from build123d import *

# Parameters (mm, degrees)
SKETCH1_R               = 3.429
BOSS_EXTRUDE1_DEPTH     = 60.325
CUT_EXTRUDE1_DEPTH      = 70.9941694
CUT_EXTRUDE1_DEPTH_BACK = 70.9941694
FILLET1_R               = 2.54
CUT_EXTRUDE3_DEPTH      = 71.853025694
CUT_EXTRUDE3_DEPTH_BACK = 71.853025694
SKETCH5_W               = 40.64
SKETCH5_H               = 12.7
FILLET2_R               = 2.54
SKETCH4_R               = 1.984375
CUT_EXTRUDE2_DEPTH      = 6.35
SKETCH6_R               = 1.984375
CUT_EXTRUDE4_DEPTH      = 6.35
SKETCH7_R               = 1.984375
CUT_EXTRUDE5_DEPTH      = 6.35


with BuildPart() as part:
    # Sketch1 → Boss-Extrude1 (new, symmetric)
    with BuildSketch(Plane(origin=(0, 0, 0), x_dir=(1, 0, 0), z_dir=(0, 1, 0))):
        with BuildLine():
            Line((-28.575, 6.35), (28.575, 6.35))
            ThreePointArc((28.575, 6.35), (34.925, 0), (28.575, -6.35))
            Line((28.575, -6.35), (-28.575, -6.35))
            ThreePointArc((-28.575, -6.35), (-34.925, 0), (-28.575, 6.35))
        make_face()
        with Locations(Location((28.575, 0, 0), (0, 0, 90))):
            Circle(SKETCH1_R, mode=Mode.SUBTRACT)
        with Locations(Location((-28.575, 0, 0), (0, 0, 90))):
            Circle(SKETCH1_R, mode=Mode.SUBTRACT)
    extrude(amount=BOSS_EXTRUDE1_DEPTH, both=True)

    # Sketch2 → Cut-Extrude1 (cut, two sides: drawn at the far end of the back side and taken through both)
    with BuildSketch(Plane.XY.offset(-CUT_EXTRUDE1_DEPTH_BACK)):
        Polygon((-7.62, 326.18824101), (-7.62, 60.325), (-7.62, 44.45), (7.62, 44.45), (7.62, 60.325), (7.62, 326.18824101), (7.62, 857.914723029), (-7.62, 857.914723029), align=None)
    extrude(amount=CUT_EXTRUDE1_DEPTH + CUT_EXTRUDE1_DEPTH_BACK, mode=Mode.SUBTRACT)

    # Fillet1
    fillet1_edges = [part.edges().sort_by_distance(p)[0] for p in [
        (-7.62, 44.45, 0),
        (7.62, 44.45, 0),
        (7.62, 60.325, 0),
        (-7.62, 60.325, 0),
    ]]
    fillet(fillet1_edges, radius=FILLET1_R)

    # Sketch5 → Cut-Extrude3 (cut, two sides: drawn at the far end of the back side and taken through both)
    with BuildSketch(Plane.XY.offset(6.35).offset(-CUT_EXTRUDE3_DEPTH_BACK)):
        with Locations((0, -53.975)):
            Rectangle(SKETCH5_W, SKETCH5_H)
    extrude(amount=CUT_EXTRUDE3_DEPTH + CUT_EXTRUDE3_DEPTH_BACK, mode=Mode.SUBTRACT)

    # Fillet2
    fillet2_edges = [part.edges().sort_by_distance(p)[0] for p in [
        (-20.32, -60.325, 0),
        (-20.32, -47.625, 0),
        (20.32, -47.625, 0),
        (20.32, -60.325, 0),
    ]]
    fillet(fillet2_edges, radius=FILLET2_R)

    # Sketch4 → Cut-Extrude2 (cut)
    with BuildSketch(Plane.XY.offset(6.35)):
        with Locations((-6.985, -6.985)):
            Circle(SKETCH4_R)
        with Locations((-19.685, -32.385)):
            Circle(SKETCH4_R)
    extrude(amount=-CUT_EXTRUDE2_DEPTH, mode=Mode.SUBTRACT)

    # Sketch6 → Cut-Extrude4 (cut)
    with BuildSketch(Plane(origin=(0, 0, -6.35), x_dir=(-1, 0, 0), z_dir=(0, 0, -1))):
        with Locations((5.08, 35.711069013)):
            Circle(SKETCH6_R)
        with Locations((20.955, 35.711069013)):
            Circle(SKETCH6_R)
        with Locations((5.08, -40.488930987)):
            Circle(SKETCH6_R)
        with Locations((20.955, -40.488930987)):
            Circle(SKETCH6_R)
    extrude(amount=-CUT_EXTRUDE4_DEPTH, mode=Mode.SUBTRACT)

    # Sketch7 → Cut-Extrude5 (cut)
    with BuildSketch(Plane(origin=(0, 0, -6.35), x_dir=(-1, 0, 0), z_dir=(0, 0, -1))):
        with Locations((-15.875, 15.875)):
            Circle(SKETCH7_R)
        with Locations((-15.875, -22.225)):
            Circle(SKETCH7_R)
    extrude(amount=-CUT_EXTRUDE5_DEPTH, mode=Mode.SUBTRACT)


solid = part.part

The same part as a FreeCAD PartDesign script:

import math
import FreeCAD as App
import Part
import Sketcher
Q = App.Units.Quantity


def edges_at(feature, points):
    """Names of the edges that pass closest to the given points."""
    edges = feature.Shape.Edges
    near = lambda p: min(range(len(edges)), key=lambda i: edges[i].distToShape(Part.Vertex(*p))[0])
    return sorted({f"Edge{near(p) + 1}" for p in points})

doc = App.newDocument("Part")
body = doc.addObject("PartDesign::Body", "Body")

sketch1 = doc.addObject("Sketcher::SketchObject", "Sketch")
body.addObject(sketch1)
sketch1.AttachmentSupport = (doc.XZ_Plane, [""])
sketch1.MapMode = "FlatFace"
sketch1.addGeometry(Part.LineSegment(App.Vector(28.6, -6.3, 0), App.Vector(-28.6, -6.3, 0)), False)
sketch1.addGeometry(Part.ArcOfCircle(Part.Circle(App.Vector(-28.6, 0, 0), App.Vector(0, 0, 1), 6.3), math.radians(90), math.radians(270)), False)
sketch1.addGeometry(Part.LineSegment(App.Vector(-28.6, 6.3, 0), App.Vector(28.6, 6.3, 0)), False)
sketch1.addGeometry(Part.ArcOfCircle(Part.Circle(App.Vector(28.6, 0, 0), App.Vector(0, 0, 1), 6.3), math.radians(-90), math.radians(90)), False)
sketch1.addGeometry(Part.Circle(App.Vector(28.6, 0, 0), App.Vector(0, 0, 1), 3.4), False)
sketch1.addGeometry(Part.Circle(App.Vector(-28.6, 0, 0), App.Vector(0, 0, 1), 3.4), False)
sketch1.addConstraint(Sketcher.Constraint("Tangent", 0, 2, 1, 2))
sketch1.addConstraint(Sketcher.Constraint("Tangent", 1, 1, 2, 1))
sketch1.addConstraint(Sketcher.Constraint("Tangent", 2, 2, 3, 2))
sketch1.addConstraint(Sketcher.Constraint("Tangent", 3, 1, 0, 1))
sketch1.addConstraint(Sketcher.Constraint("Horizontal", 0))
sketch1.addConstraint(Sketcher.Constraint("Horizontal", 2))
sketch1.addConstraint(Sketcher.Constraint("Coincident", 4, 3, 3, 3))
sketch1.addConstraint(Sketcher.Constraint("Coincident", 5, 3, 1, 3))
sketch1.addConstraint(Sketcher.Constraint("Equal", 4, 5))
sketch1.addConstraint(Sketcher.Constraint("Symmetric", 1, 3, 3, 3, -1, 1))
sketch1.addConstraint(Sketcher.Constraint("Diameter", 4, Q("0.27 in")))
sketch1.addConstraint(Sketcher.Constraint("Radius", 1, Q("0.25 in")))
sketch1.addConstraint(Sketcher.Constraint("DistanceX", 0, 2, 0, 1, Q("2.25 in")))
pad1 = doc.addObject("PartDesign::Pad", "Pad")
body.addObject(pad1)
pad1.Profile = sketch1
pad1.Length = Q("4.75 in")
pad1.Midplane = True

sketch2 = doc.addObject("Sketcher::SketchObject", "Sketch001")
body.addObject(sketch2)
sketch2.AttachmentSupport = (doc.XY_Plane, [""])
sketch2.MapMode = "FlatFace"
sketch2.addGeometry(Part.LineSegment(App.Vector(-8, 44, 0), App.Vector(8, 44, 0)), False)
sketch2.addGeometry(Part.LineSegment(App.Vector(8, 44, 0), App.Vector(8, 858, 0)), False)
sketch2.addGeometry(Part.LineSegment(App.Vector(8, 858, 0), App.Vector(-8, 858, 0)), False)
sketch2.addGeometry(Part.LineSegment(App.Vector(-8, 858, 0), App.Vector(-8, 44, 0)), False)
sketch2.addConstraint(Sketcher.Constraint("Coincident", 0, 2, 1, 1))
sketch2.addConstraint(Sketcher.Constraint("Coincident", 1, 2, 2, 1))
sketch2.addConstraint(Sketcher.Constraint("Coincident", 2, 2, 3, 1))
sketch2.addConstraint(Sketcher.Constraint("Coincident", 3, 2, 0, 1))
sketch2.addConstraint(Sketcher.Constraint("Horizontal", 0))
sketch2.addConstraint(Sketcher.Constraint("Vertical", 1))
sketch2.addConstraint(Sketcher.Constraint("Horizontal", 2))
sketch2.addConstraint(Sketcher.Constraint("Vertical", 3))
sketch2.addConstraint(Sketcher.Constraint("DistanceX", 0, 1, 0, 2, Q("0.6 in")))
sketch2.addConstraint(Sketcher.Constraint("DistanceX", -1, 1, 0, 2, Q("0.3 in")))
sketch2.addConstraint(Sketcher.Constraint("DistanceY", -1, 1, 0, 2, Q("1.75 in")))
sketch2.addConstraint(Sketcher.Constraint("DistanceY", 1, 1, 1, 2, Q("813.464723 mm")))
pocket1 = doc.addObject("PartDesign::Pocket", "Pocket")
body.addObject(pocket1)
pocket1.Profile = sketch2
pocket1.Type = "ThroughAll"
pocket1.Midplane = True
doc.recompute()

fillet = doc.addObject("PartDesign::Fillet", "Fillet")
body.addObject(fillet)
fillet.Base = (pocket1, edges_at(pocket1, [
    (-7.62, 44.45, 0),
    (7.62, 44.45, 0),
    (7.62, 60.325, 0),
    (-7.62, 60.325, 0),
]))
fillet.Radius = Q("0.1 in")

sketch3 = doc.addObject("Sketcher::SketchObject", "Sketch002")
body.addObject(sketch3)
sketch3.AttachmentSupport = (doc.XY_Plane, [""])
sketch3.MapMode = "FlatFace"
sketch3.AttachmentOffset = App.Placement(App.Vector(0, 0, 0.25 * 25.4), App.Rotation())
sketch3.addGeometry(Part.LineSegment(App.Vector(-20, -48, 0), App.Vector(-20, -60, 0)), False)
sketch3.addGeometry(Part.LineSegment(App.Vector(-20, -60, 0), App.Vector(20, -60, 0)), False)
sketch3.addGeometry(Part.LineSegment(App.Vector(20, -60, 0), App.Vector(20, -48, 0)), False)
sketch3.addGeometry(Part.LineSegment(App.Vector(20, -48, 0), App.Vector(-20, -48, 0)), False)
sketch3.addConstraint(Sketcher.Constraint("Coincident", 0, 2, 1, 1))
sketch3.addConstraint(Sketcher.Constraint("Coincident", 1, 2, 2, 1))
sketch3.addConstraint(Sketcher.Constraint("Coincident", 2, 2, 3, 1))
sketch3.addConstraint(Sketcher.Constraint("Coincident", 3, 2, 0, 1))
sketch3.addConstraint(Sketcher.Constraint("Vertical", 0))
sketch3.addConstraint(Sketcher.Constraint("Horizontal", 1))
sketch3.addConstraint(Sketcher.Constraint("Vertical", 2))
sketch3.addConstraint(Sketcher.Constraint("Horizontal", 3))
sketch3.addConstraint(Sketcher.Constraint("DistanceX", 1, 1, 1, 2, Q("1.6 in")))
sketch3.addConstraint(Sketcher.Constraint("DistanceY", 0, 2, 0, 1, Q("0.5 in")))
sketch3.addConstraint(Sketcher.Constraint("DistanceX", 0, 2, -1, 1, Q("0.8 in")))
sketch3.addConstraint(Sketcher.Constraint("DistanceY", 0, 2, -1, 1, Q("2.375 in")))
pocket2 = doc.addObject("PartDesign::Pocket", "Pocket001")
body.addObject(pocket2)
pocket2.Profile = sketch3
pocket2.Type = "ThroughAll"
pocket2.Midplane = True
doc.recompute()

fillet2 = doc.addObject("PartDesign::Fillet", "Fillet001")
body.addObject(fillet2)
fillet2.Base = (pocket2, edges_at(pocket2, [
    (-20.32, -60.325, 0),
    (-20.32, -47.625, 0),
    (20.32, -47.625, 0),
    (20.32, -60.325, 0),
]))
fillet2.Radius = Q("0.1 in")

sketch4 = doc.addObject("Sketcher::SketchObject", "Sketch003")
body.addObject(sketch4)
sketch4.AttachmentSupport = (doc.XY_Plane, [""])
sketch4.MapMode = "FlatFace"
sketch4.AttachmentOffset = App.Placement(App.Vector(0, 0, 0.25 * 25.4), App.Rotation())
sketch4.addGeometry(Part.Circle(App.Vector(-7, -7, 0), App.Vector(0, 0, 1), 2), False)
sketch4.addGeometry(Part.Circle(App.Vector(-19.7, -32.4, 0), App.Vector(0, 0, 1), 2), False)
sketch4.addConstraint(Sketcher.Constraint("Equal", 0, 1))
sketch4.addConstraint(Sketcher.Constraint("Diameter", 0, Q("0.15625 in")))
sketch4.addConstraint(Sketcher.Constraint("DistanceY", 1, 3, 0, 3, Q("1 in")))
sketch4.addConstraint(Sketcher.Constraint("DistanceX", 1, 3, 0, 3, Q("0.5 in")))
sketch4.addConstraint(Sketcher.Constraint("DistanceX", 0, 3, -1, 1, Q("0.275 in")))
sketch4.addConstraint(Sketcher.Constraint("DistanceY", 0, 3, -1, 1, Q("0.275 in")))
pocket3 = doc.addObject("PartDesign::Pocket", "Pocket002")
body.addObject(pocket3)
pocket3.Profile = sketch4
pocket3.Length = Q("0.25 in")

sketch5 = doc.addObject("Sketcher::SketchObject", "Sketch004")
body.addObject(sketch5)
sketch5.AttachmentSupport = (doc.XY_Plane, [""])
sketch5.MapMode = "FlatFace"
sketch5.AttachmentOffset = App.Placement(App.Vector(0, 0, -0.25 * 25.4), App.Rotation())
sketch5.addGeometry(Part.Circle(App.Vector(-5.1, 35.7, 0), App.Vector(0, 0, 1), 2), False)
sketch5.addGeometry(Part.Circle(App.Vector(-21, 35.7, 0), App.Vector(0, 0, 1), 2), False)
sketch5.addGeometry(Part.Circle(App.Vector(-5.1, -40.5, 0), App.Vector(0, 0, 1), 2), False)
sketch5.addGeometry(Part.Circle(App.Vector(-21, -40.5, 0), App.Vector(0, 0, 1), 2), False)
sketch5.addConstraint(Sketcher.Constraint("Equal", 0, 1))
sketch5.addConstraint(Sketcher.Constraint("Equal", 1, 2))
sketch5.addConstraint(Sketcher.Constraint("Equal", 2, 3))
sketch5.addConstraint(Sketcher.Constraint("Horizontal", 0, 3, 1, 3))
sketch5.addConstraint(Sketcher.Constraint("Horizontal", 2, 3, 3, 3))
sketch5.addConstraint(Sketcher.Constraint("Vertical", 0, 3, 2, 3))
sketch5.addConstraint(Sketcher.Constraint("Vertical", 1, 3, 3, 3))
sketch5.addConstraint(Sketcher.Constraint("Diameter", 0, Q("0.15625 in")))
sketch5.addConstraint(Sketcher.Constraint("DistanceY", 2, 3, 0, 3, Q("3 in")))
sketch5.addConstraint(Sketcher.Constraint("DistanceX", 0, 3, -1, 1, Q("0.2 in")))
sketch5.addConstraint(Sketcher.Constraint("DistanceX", 1, 3, -1, 1, Q("0.825 in")))
sketch5.addConstraint(Sketcher.Constraint("DistanceY", -1, 1, 0, 3, Q("35.711069 mm")))
pocket4 = doc.addObject("PartDesign::Pocket", "Pocket003")
body.addObject(pocket4)
pocket4.Profile = sketch5
pocket4.Length = Q("0.25 in")
pocket4.Reversed = True

sketch6 = doc.addObject("Sketcher::SketchObject", "Sketch005")
body.addObject(sketch6)
sketch6.AttachmentSupport = (doc.XY_Plane, [""])
sketch6.MapMode = "FlatFace"
sketch6.AttachmentOffset = App.Placement(App.Vector(0, 0, -0.25 * 25.4), App.Rotation())
sketch6.addGeometry(Part.Circle(App.Vector(15.9, 15.9, 0), App.Vector(0, 0, 1), 2), False)
sketch6.addGeometry(Part.Circle(App.Vector(15.9, -22.2, 0), App.Vector(0, 0, 1), 2), False)
sketch6.addConstraint(Sketcher.Constraint("Equal", 0, 1))
sketch6.addConstraint(Sketcher.Constraint("Vertical", 0, 3, 1, 3))
sketch6.addConstraint(Sketcher.Constraint("Diameter", 0, Q("0.15625 in")))
sketch6.addConstraint(Sketcher.Constraint("DistanceY", 1, 3, 0, 3, Q("1.5 in")))
sketch6.addConstraint(Sketcher.Constraint("DistanceX", -1, 1, 0, 3, Q("0.625 in")))
sketch6.addConstraint(Sketcher.Constraint("DistanceY", -1, 1, 0, 3, Q("0.625 in")))
pocket5 = doc.addObject("PartDesign::Pocket", "Pocket004")
body.addObject(pocket5)
pocket5.Profile = sketch6
pocket5.Length = Q("0.25 in")
pocket5.Reversed = True

doc.recompute()
